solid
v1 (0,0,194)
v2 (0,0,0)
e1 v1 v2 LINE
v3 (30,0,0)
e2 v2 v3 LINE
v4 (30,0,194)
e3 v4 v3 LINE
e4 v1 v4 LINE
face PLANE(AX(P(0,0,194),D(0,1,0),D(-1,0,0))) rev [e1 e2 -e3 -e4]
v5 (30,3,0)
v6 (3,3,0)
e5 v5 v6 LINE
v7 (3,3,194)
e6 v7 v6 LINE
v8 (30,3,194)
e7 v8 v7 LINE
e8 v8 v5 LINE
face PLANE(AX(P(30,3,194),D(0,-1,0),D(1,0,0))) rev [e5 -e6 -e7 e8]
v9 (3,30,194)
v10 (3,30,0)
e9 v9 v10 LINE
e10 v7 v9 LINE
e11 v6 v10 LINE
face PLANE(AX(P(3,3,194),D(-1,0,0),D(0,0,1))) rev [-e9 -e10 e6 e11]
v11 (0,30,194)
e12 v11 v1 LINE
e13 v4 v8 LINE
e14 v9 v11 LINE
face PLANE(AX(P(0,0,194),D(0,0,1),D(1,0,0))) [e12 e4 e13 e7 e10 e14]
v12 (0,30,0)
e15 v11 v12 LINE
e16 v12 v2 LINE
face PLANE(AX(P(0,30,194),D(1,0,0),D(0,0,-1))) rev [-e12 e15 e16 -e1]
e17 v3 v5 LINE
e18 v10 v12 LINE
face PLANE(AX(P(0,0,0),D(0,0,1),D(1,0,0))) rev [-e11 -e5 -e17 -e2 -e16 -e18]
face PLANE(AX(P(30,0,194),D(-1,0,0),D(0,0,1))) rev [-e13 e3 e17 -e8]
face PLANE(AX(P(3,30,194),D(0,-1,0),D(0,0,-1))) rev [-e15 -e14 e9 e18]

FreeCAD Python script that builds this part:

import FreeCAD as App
import Part
import Sketcher
Q = App.Units.Quantity

doc = App.newDocument("Part")
params = doc.addObject("Spreadsheet::Sheet", "Params")
for row, (alias, value) in enumerate([
    ("sketch1_width", "30 mm"),
    ("sketch1_width2", "27 mm"),
    ("pad1_length", "194 mm"),
], start=1):
    params.set(f"A{row}", alias)
    params.set(f"B{row}", "=" + value)
    params.setAlias(f"B{row}", alias)

body = doc.addObject("PartDesign::Body", "Body")

sketch1 = body.newObject("Sketcher::SketchObject", "Sketch")
sketch1.AttachmentSupport = (doc.getObject("XY_Plane"), [""])
sketch1.MapMode = "FlatFace"
sketch1.addGeometry([
    Part.LineSegment(App.Vector(0, 0, 0), App.Vector(30, 0, 0)),
    Part.LineSegment(App.Vector(30, 0, 0), App.Vector(30, 3, 0)),
    Part.LineSegment(App.Vector(30, 3, 0), App.Vector(3, 3, 0)),
    Part.LineSegment(App.Vector(3, 3, 0), App.Vector(3, 30, 0)),
    Part.LineSegment(App.Vector(3, 30, 0), App.Vector(0, 30, 0)),
    Part.LineSegment(App.Vector(0, 30, 0), App.Vector(0, 0, 0)),
], False)
sketch1.addConstraint([
    Sketcher.Constraint("Coincident", 0, 2, 1, 1),
    Sketcher.Constraint("Coincident", 1, 2, 2, 1),
    Sketcher.Constraint("Coincident", 2, 2, 3, 1),
    Sketcher.Constraint("Coincident", 3, 2, 4, 1),
    Sketcher.Constraint("Coincident", 4, 2, 5, 1),
    Sketcher.Constraint("Coincident", 5, 2, 0, 1),
    Sketcher.Constraint("Horizontal", 0),
    Sketcher.Constraint("Vertical", 1),
    Sketcher.Constraint("Horizontal", 2),
    Sketcher.Constraint("Vertical", 3),
    Sketcher.Constraint("Horizontal", 4),
    Sketcher.Constraint("Vertical", 5),
    Sketcher.Constraint("Coincident", 5, 2, -1, 1),
    Sketcher.Constraint("Equal", 4, 1),
    Sketcher.Constraint("Equal", 2, 3),
    Sketcher.Constraint("DistanceX", 0, 1, 0, 2, Q("30 mm")),
    Sketcher.Constraint("DistanceX", 2, 2, 2, 1, Q("27 mm")),
])
sketch1.setExpression("Constraints[15]", "Params.sketch1_width")
sketch1.setExpression("Constraints[16]", "Params.sketch1_width2")
pad1 = body.newObject("PartDesign::Pad", "Pad")
pad1.Profile = sketch1
pad1.setExpression("Length", "Params.pad1_length")

doc.recompute()
